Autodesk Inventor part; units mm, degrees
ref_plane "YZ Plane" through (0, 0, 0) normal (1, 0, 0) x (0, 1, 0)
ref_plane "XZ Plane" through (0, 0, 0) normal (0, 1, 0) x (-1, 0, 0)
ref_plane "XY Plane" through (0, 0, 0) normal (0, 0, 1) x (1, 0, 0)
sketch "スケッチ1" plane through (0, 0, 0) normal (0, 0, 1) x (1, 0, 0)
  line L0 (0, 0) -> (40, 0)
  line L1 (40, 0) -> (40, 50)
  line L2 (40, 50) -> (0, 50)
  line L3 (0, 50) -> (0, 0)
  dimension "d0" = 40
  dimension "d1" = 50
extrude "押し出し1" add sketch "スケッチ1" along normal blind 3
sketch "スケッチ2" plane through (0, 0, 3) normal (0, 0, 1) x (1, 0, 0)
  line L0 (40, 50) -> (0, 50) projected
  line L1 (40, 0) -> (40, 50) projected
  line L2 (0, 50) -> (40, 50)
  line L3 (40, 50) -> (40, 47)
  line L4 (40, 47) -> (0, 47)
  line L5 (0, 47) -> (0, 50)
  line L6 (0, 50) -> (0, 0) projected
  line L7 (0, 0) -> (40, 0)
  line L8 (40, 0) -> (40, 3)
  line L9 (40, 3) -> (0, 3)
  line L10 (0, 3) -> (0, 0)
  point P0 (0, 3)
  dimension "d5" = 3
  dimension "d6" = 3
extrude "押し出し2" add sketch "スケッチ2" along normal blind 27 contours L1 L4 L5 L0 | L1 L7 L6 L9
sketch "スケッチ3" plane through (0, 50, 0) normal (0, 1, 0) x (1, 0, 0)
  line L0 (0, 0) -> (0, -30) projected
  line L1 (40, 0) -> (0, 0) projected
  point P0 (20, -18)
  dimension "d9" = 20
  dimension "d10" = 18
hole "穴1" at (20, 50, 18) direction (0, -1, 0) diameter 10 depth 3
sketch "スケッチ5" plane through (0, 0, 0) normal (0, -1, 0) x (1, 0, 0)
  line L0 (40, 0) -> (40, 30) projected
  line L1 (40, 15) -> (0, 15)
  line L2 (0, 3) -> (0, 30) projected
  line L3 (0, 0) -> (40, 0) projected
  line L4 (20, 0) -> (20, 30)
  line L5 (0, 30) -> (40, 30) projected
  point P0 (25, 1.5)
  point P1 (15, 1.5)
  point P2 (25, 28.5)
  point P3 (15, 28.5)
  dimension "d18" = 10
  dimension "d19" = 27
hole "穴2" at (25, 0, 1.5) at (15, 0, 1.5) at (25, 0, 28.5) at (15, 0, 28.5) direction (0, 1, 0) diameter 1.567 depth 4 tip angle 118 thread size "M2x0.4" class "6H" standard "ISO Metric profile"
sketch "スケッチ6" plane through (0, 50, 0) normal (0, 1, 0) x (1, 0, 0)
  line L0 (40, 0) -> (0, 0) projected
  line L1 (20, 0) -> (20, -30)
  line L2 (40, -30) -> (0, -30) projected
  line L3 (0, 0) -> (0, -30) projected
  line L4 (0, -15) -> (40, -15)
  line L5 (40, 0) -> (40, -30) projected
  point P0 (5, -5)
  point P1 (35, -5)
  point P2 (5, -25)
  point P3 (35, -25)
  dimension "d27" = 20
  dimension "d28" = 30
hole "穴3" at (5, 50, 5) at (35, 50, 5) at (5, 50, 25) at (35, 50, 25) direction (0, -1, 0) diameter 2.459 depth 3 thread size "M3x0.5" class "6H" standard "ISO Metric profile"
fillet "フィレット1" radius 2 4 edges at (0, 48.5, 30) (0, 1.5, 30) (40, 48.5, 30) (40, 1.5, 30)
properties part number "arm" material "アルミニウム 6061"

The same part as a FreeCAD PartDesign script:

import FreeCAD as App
import Part
import Sketcher

V = App.Vector
Q = App.Units.Quantity


def edges_at(feature, points):
    """Names of the edges that pass closest to the given points."""
    edges = feature.Shape.Edges
    near = lambda p: min(range(len(edges)), key=lambda i: edges[i].distToShape(Part.Vertex(*p))[0])
    return sorted({f"Edge{near(p) + 1}" for p in points})


def add_polygon(sketch, points):
    """Adds a closed chain of lines whose ends are joined by coincident constraints."""
    first, n = sketch.GeometryCount, len(points)
    for a, b in zip(points, points[1:] + points[:1]):
        sketch.addGeometry(Part.LineSegment(App.Vector(*a, 0), App.Vector(*b, 0)), False)
    for i in range(n):
        sketch.addConstraint(Sketcher.Constraint("Coincident", first + i, 2, first + (i + 1) % n, 1))

doc = App.newDocument("Part")
body = doc.addObject("PartDesign::Body", "Body")

# Sketch on XY plane
sketch1 = doc.addObject("Sketcher::SketchObject", "Sketch")
body.addObject(sketch1)
sketch1.AttachmentSupport = (doc.XY_Plane, [""])
sketch1.MapMode = "FlatFace"
add_polygon(sketch1, [(0, 50), (0, 0), (40, 0), (40, 50)])  # lines 0-3
sketch1.addConstraint([
    Sketcher.Constraint("Vertical", 0),
    Sketcher.Constraint("Horizontal", 1),
    Sketcher.Constraint("Vertical", 2),
    Sketcher.Constraint("Horizontal", 3),
    Sketcher.Constraint("Coincident", 0, 2, -1, 1),
    Sketcher.Constraint("DistanceX", 1, 1, 1, 2, Q("40 mm")),
    Sketcher.Constraint("DistanceY", 0, 2, 0, 1, Q("50 mm")),
])
pad1 = doc.addObject("PartDesign::Pad", "Pad")
body.addObject(pad1)
pad1.Profile = sketch1
pad1.Length = 3

# Sketch on XY plane
sketch2 = doc.addObject("Sketcher::SketchObject", "Sketch001")
body.addObject(sketch2)
sketch2.AttachmentSupport = (doc.XY_Plane, [""])
sketch2.MapMode = "FlatFace"
sketch2.AttachmentOffset = App.Placement(V(0, 0, 3), App.Rotation())
add_polygon(sketch2, [(40, 47), (40, 50), (0, 50), (0, 47)])  # lines 0-3
add_polygon(sketch2, [(40, 0), (40, 3), (0, 3), (0, 0)])  # lines 4-7
sketch2.addConstraint([
    Sketcher.Constraint("Vertical", 0),
    Sketcher.Constraint("Horizontal", 1),
    Sketcher.Constraint("Vertical", 2),
    Sketcher.Constraint("Horizontal", 3),
    Sketcher.Constraint("Vertical", 4),
    Sketcher.Constraint("Horizontal", 5),
    Sketcher.Constraint("Vertical", 6),
    Sketcher.Constraint("Horizontal", 7),
    Sketcher.Constraint("Coincident", 6, 2, -1, 1),
    Sketcher.Constraint("PointOnObject", 1, 2, -2),
    Sketcher.Constraint("Vertical", 3, 2, 4, 2),
    Sketcher.Constraint("Equal", 2, 4),
    Sketcher.Constraint("DistanceY", 0, 1, 0, 2, Q("3 mm")),
    Sketcher.Constraint("DistanceX", 1, 2, 1, 1, Q("40 mm")),
    Sketcher.Constraint("DistanceY", -1, 1, 0, 2, Q("50 mm")),
])
pad2 = doc.addObject("PartDesign::Pad", "Pad001")
body.addObject(pad2)
pad2.Profile = sketch2
pad2.Length = 27

# Sketch on XZ plane
sketch3 = doc.addObject("Sketcher::SketchObject", "Sketch002")
body.addObject(sketch3)
sketch3.AttachmentSupport = (doc.XZ_Plane, [""])
sketch3.MapMode = "FlatFace"
sketch3.AttachmentOffset = App.Placement(V(0, 0, -50), App.Rotation())
sketch3.addGeometry(Part.Circle(V(20, 18, 0), V(0, 0, 1), 5), False)
sketch3.addConstraint([
    Sketcher.Constraint("Diameter", 0, Q("10 mm")),
    Sketcher.Constraint("DistanceX", -1, 1, 0, 3, Q("20 mm")),
    Sketcher.Constraint("DistanceY", -1, 1, 0, 3, Q("18 mm")),
])
doc.recompute()
hole = doc.addObject("PartDesign::Hole", "Hole")
body.addObject(hole)
hole.Profile = sketch3
hole.ThreadType = "None"
hole.Diameter = 10
hole.DepthType = "Dimension"
hole.Depth = 3
hole.DrillPoint = "Flat"
hole.Reversed = True

# Sketch on XZ plane
sketch4 = doc.addObject("Sketcher::SketchObject", "Sketch003")
body.addObject(sketch4)
sketch4.AttachmentSupport = (doc.XZ_Plane, [""])
sketch4.MapMode = "FlatFace"
sketch4.addGeometry([
    Part.Circle(V(25, 1.5, 0), V(0, 0, 1), 0.8),
    Part.Circle(V(15, 1.5, 0), V(0, 0, 1), 0.8),
    Part.Circle(V(25, 28.5, 0), V(0, 0, 1), 0.8),
    Part.Circle(V(15, 28.5, 0), V(0, 0, 1), 0.8),
], False)
sketch4.addConstraint([
    Sketcher.Constraint("Equal", 0, 1),
    Sketcher.Constraint("Equal", 1, 2),
    Sketcher.Constraint("Equal", 2, 3),
    Sketcher.Constraint("Horizontal", 0, 3, 1, 3),
    Sketcher.Constraint("Horizontal", 2, 3, 3, 3),
    Sketcher.Constraint("Vertical", 0, 3, 2, 3),
    Sketcher.Constraint("Vertical", 1, 3, 3, 3),
    Sketcher.Constraint("Diameter", 0, Q("1.567 mm")),
    Sketcher.Constraint("DistanceX", -1, 1, 0, 3, Q("25 mm")),
    Sketcher.Constraint("DistanceX", -1, 1, 1, 3, Q("15 mm")),
    Sketcher.Constraint("DistanceY", 0, 3, 2, 3, Q("27 mm")),
    Sketcher.Constraint("DistanceY", -1, 1, 0, 3, Q("1.5 mm")),
])
doc.recompute()
hole2 = doc.addObject("PartDesign::Hole", "Hole001")
body.addObject(hole2)
hole2.Profile = sketch4
hole2.ThreadType = "None"
hole2.Diameter = 1.567
hole2.DepthType = "Dimension"
hole2.Depth = 4
hole2.DrillPoint = "Angled"
hole2.DrillPointAngle = 118

# Sketch on XZ plane
sketch5 = doc.addObject("Sketcher::SketchObject", "Sketch004")
body.addObject(sketch5)
sketch5.AttachmentSupport = (doc.XZ_Plane, [""])
sketch5.MapMode = "FlatFace"
sketch5.AttachmentOffset = App.Placement(V(0, 0, -50), App.Rotation())
sketch5.addGeometry([
    Part.Circle(V(5, 5, 0), V(0, 0, 1), 1.2),
    Part.Circle(V(35, 5, 0), V(0, 0, 1), 1.2),
    Part.Circle(V(5, 25, 0), V(0, 0, 1), 1.2),
    Part.Circle(V(35, 25, 0), V(0, 0, 1), 1.2),
], False)
sketch5.addConstraint([
    Sketcher.Constraint("Equal", 0, 1),
    Sketcher.Constraint("Equal", 1, 2),
    Sketcher.Constraint("Equal", 2, 3),
    Sketcher.Constraint("Horizontal", 0, 3, 1, 3),
    Sketcher.Constraint("Horizontal", 2, 3, 3, 3),
    Sketcher.Constraint("Vertical", 0, 3, 2, 3),
    Sketcher.Constraint("Vertical", 1, 3, 3, 3),
    Sketcher.Constraint("Diameter", 0, Q("2.459 mm")),
    Sketcher.Constraint("DistanceX", -1, 1, 0, 3, Q("5 mm")),
    Sketcher.Constraint("DistanceY", -1, 1, 0, 3, Q("5 mm")),
    Sketcher.Constraint("DistanceX", -1, 1, 1, 3, Q("35 mm")),
    Sketcher.Constraint("DistanceY", -1, 1, 2, 3, Q("25 mm")),
])
doc.recompute()
hole3 = doc.addObject("PartDesign::Hole", "Hole002")
body.addObject(hole3)
hole3.Profile = sketch5
hole3.ThreadType = "None"
hole3.Diameter = 2.459
hole3.DepthType = "Dimension"
hole3.Depth = 3
hole3.DrillPoint = "Flat"
hole3.Reversed = True
doc.recompute()

fillet = doc.addObject("PartDesign::Fillet", "Fillet")
body.addObject(fillet)
fillet.Base = (hole3, edges_at(hole3, [
    (0, 48.5, 30),
    (0, 1.5, 30),
    (40, 48.5, 30),
    (40, 1.5, 30),
]))
fillet.Radius = 2

doc.recompute()
